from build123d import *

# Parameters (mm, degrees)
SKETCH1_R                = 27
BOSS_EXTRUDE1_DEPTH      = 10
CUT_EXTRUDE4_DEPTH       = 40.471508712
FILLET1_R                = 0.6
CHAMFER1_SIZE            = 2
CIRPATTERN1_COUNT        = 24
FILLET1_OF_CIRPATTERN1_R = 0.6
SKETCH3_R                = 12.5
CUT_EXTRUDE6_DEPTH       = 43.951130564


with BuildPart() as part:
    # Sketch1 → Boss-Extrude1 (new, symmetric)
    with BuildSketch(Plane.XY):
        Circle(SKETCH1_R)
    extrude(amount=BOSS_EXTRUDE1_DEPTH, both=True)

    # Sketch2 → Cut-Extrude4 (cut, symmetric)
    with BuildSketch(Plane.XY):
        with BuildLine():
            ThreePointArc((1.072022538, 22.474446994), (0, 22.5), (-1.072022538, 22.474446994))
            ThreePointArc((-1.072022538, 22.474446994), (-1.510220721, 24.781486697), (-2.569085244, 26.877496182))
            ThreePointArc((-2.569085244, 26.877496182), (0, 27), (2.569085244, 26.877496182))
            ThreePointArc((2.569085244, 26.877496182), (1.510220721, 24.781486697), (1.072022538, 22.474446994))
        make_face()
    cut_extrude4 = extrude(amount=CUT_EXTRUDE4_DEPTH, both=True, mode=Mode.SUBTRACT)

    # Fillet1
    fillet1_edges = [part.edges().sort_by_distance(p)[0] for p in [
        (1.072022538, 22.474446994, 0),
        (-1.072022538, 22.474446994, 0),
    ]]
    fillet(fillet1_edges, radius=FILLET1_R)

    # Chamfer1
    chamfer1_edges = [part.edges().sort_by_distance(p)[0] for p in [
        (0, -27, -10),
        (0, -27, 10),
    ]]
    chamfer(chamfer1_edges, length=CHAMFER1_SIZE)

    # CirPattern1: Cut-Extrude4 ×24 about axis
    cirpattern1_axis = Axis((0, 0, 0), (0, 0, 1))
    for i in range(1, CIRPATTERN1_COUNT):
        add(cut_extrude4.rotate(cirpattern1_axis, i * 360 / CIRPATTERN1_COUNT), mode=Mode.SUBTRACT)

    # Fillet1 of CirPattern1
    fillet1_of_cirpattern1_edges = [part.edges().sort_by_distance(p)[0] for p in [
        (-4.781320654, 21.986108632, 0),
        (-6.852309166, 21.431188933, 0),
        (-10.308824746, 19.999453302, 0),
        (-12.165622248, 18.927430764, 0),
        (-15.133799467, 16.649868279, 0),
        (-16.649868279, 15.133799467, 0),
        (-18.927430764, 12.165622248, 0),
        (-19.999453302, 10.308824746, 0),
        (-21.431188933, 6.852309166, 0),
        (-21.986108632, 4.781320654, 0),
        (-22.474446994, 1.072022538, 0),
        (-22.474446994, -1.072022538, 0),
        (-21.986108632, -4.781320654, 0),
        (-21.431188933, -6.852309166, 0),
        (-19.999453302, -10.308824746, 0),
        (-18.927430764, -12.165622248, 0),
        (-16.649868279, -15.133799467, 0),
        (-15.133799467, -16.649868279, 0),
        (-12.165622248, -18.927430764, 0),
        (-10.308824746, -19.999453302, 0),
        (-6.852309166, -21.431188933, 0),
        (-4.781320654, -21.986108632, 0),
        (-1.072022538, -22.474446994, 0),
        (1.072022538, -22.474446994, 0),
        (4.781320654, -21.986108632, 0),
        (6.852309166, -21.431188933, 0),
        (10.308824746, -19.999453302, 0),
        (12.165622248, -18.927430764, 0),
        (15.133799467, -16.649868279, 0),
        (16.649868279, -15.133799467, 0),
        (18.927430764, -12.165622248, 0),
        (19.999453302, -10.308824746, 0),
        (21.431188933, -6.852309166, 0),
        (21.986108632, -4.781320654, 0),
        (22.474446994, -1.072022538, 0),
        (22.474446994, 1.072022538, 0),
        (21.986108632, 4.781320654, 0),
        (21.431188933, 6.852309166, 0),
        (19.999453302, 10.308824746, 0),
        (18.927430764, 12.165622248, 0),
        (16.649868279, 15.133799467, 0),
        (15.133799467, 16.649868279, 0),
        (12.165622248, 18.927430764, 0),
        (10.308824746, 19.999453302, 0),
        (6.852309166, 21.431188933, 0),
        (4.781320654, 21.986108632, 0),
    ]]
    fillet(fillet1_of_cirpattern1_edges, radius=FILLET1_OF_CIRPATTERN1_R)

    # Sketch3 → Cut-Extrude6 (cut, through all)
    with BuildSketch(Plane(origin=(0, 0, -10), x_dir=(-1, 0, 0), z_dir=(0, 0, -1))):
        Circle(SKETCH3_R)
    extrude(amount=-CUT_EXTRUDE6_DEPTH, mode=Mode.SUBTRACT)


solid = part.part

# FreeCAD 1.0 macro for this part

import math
import FreeCAD as App
import Part
import Sketcher
Q = App.Units.Quantity


def edges_at(feature, points):
    """Names of the edges that pass closest to the given points."""
    edges = feature.Shape.Edges
    near = lambda p: min(range(len(edges)), key=lambda i: edges[i].distToShape(Part.Vertex(*p))[0])
    return sorted({f"Edge{near(p) + 1}" for p in points})

doc = App.newDocument("Part")
body = doc.addObject("PartDesign::Body", "Body")

# Sketch on XY plane
sketch1 = body.newObject("Sketcher::SketchObject", "Sketch")
sketch1.AttachmentSupport = (doc.getObject("XY_Plane"), [""])
sketch1.MapMode = "FlatFace"
sketch1.addGeometry(Part.Circle(App.Vector(0, 0, 0), App.Vector(0, 0, 1), 27), False)
sketch1.addConstraint([
    Sketcher.Constraint("Coincident", 0, 3, -1, 1),
    Sketcher.Constraint("Diameter", 0, Q("54 mm")),
])
pad1 = body.newObject("PartDesign::Pad", "Pad")
pad1.Profile = sketch1
pad1.Length = 20
pad1.Midplane = True

# Sketch on XY plane
sketch2 = body.newObject("Sketcher::SketchObject", "Sketch001")
sketch2.AttachmentSupport = (doc.getObject("XY_Plane"), [""])
sketch2.MapMode = "FlatFace"
sketch2.addGeometry([
    Part.ArcOfCircle(Part.Circle(App.Vector(0, 0, 0), App.Vector(0, 0, 1), 22.5), math.radians(87.27), math.radians(92.73)),
    Part.ArcOfCircle(Part.Circle(App.Vector(9.5, 22.1, 0), App.Vector(0, 0, 1), 8.4), math.radians(145), math.radians(177)),
    Part.ArcOfCircle(Part.Circle(App.Vector(0, 0, 0), App.Vector(0, 0, 1), 27), math.radians(84.54), math.radians(95.46)),
    Part.ArcOfCircle(Part.Circle(App.Vector(-9.5, 22.1, 0), App.Vector(0, 0, 1), 8.4), math.radians(3), math.radians(35)),
], False)
sketch2.addConstraint([
    Sketcher.Constraint("Coincident", 0, 1, 1, 2),
    Sketcher.Constraint("Coincident", 1, 1, 2, 1),
    Sketcher.Constraint("Coincident", 2, 2, 3, 2),
    Sketcher.Constraint("Coincident", 3, 1, 0, 2),
    Sketcher.Constraint("Coincident", 0, 3, -1, 1),
    Sketcher.Constraint("Coincident", 2, 3, -1, 1),
    Sketcher.Constraint("Equal", 1, 3),
    Sketcher.Constraint("Symmetric", 1, 3, 3, 3, -2),
    Sketcher.Constraint("Radius", 2, Q("27 mm")),
    Sketcher.Constraint("Radius", 0, Q("22.5 mm")),
    Sketcher.Constraint("Radius", 1, Q("8.4118 mm")),
    Sketcher.Constraint("DistanceX", -1, 1, 1, 3, Q("9.47427 mm")),
    Sketcher.Constraint("DistanceY", 0, 1, 1, 1, Q("4.403049 mm")),
])
pocket1 = body.newObject("PartDesign::Pocket", "Pocket")
pocket1.Profile = sketch2
pocket1.Length = 80.943017
pocket1.Midplane = True
doc.recompute()

fillet = body.newObject("PartDesign::Fillet", "Fillet")
fillet.Base = (pocket1, edges_at(pocket1, [(1.072, 22.474, 0), (-1.072, 22.474, 0)]))
fillet.Radius = 0.6
doc.recompute()

chamfer = body.newObject("PartDesign::Chamfer", "Chamfer")
chamfer.Base = (fillet, edges_at(fillet, [(0, -27, -10), (0, -27, 10)]))
chamfer.Size = 2
doc.recompute()

polarpattern = body.newObject("PartDesign::PolarPattern", "PolarPattern")
polarpattern.Originals = [pocket1]
polarpattern.Axis = (doc.getObject("Z_Axis"), [""])
polarpattern.Angle = 360
polarpattern.Occurrences = 24
body.Tip = polarpattern
doc.recompute()

fillet2 = body.newObject("PartDesign::Fillet", "Fillet001")
fillet2.Base = (polarpattern, edges_at(polarpattern, [
    (-4.781, 21.986, 0),
    (-6.852, 21.431, 0),
    (-10.309, 19.999, 0),
    (-12.166, 18.927, 0),
    (-15.134, 16.65, 0),
    (-16.65, 15.134, 0),
    (-18.927, 12.166, 0),
    (-19.999, 10.309, 0),
    (-21.431, 6.852, 0),
    (-21.986, 4.781, 0),
    (-22.474, 1.072, 0),
    (-22.474, -1.072, 0),
    (-21.986, -4.781, 0),
    (-21.431, -6.852, 0),
    (-19.999, -10.309, 0),
    (-18.927, -12.166, 0),
    (-16.65, -15.134, 0),
    (-15.134, -16.65, 0),
    (-12.166, -18.927, 0),
    (-10.309, -19.999, 0),
    (-6.852, -21.431, 0),
    (-4.781, -21.986, 0),
    (-1.072, -22.474, 0),
    (1.072, -22.474, 0),
    (4.781, -21.986, 0),
    (6.852, -21.431, 0),
    (10.309, -19.999, 0),
    (12.166, -18.927, 0),
    (15.134, -16.65, 0),
    (16.65, -15.134, 0),
    (18.927, -12.166, 0),
    (19.999, -10.309, 0),
    (21.431, -6.852, 0),
    (21.986, -4.781, 0),
    (22.474, -1.072, 0),
    (22.474, 1.072, 0),
    (21.986, 4.781, 0),
    (21.431, 6.852, 0),
    (19.999, 10.309, 0),
    (18.927, 12.166, 0),
    (16.65, 15.134, 0),
    (15.134, 16.65, 0),
    (12.166, 18.927, 0),
    (10.309, 19.999, 0),
    (6.852, 21.431, 0),
    (4.781, 21.986, 0),
]))
fillet2.Radius = 0.6

# Sketch on XY plane
sketch3 = body.newObject("Sketcher::SketchObject", "Sketch002")
sketch3.AttachmentSupport = (doc.getObject("XY_Plane"), [""])
sketch3.MapMode = "FlatFace"
sketch3.AttachmentOffset = App.Placement(App.Vector(0, 0, -10), App.Rotation())
sketch3.addGeometry(Part.Circle(App.Vector(0, 0, 0), App.Vector(0, 0, 1), 12), False)
sketch3.addConstraint([
    Sketcher.Constraint("Coincident", 0, 3, -1, 1),
    Sketcher.Constraint("Diameter", 0, Q("25 mm")),
])
pocket2 = body.newObject("PartDesign::Pocket", "Pocket001")
pocket2.Profile = sketch3
pocket2.Type = "ThroughAll"
pocket2.Reversed = True

doc.recompute()
